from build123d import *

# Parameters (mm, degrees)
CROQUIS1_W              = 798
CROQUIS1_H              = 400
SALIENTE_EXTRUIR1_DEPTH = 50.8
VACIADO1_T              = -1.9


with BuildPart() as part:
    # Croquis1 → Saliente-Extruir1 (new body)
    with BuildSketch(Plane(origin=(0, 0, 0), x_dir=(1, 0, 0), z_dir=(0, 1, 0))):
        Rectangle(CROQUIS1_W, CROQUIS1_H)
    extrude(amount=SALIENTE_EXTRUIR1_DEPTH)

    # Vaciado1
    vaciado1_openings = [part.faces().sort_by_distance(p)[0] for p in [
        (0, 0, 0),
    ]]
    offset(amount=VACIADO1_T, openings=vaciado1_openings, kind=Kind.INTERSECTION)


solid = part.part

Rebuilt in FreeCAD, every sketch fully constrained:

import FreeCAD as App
import Part
import Sketcher
from FreeCAD import Vector
Q = App.Units.Quantity


def faces_at(feature, points):
    """Names of the faces that lie closest to the given points."""
    faces = feature.Shape.Faces
    near = lambda p: min(range(len(faces)), key=lambda i: faces[i].distToShape(Part.Vertex(*p))[0])
    return sorted({f"Face{near(p) + 1}" for p in points})


def add_polygon(sketch, points):
    """Adds a closed chain of lines whose ends are joined by coincident constraints."""
    first, n = sketch.GeometryCount, len(points)
    for a, b in zip(points, points[1:] + points[:1]):
        sketch.addGeometry(Part.LineSegment(App.Vector(*a, 0), App.Vector(*b, 0)), False)
    for i in range(n):
        sketch.addConstraint(Sketcher.Constraint("Coincident", first + i, 2, first + (i + 1) % n, 1))

doc = App.newDocument("Part")
params = doc.addObject("Spreadsheet::Sheet", "Params")
for row, (alias, value) in enumerate([
    ("sketch1_width", "798 mm"),
    ("sketch1_height", "400 mm"),
    ("pad1_length", "50.8 mm"),
    ("thickness_wall", "1.9 mm"),
], start=1):
    params.set(f"A{row}", alias)
    params.set(f"B{row}", "=" + value)
    params.setAlias(f"B{row}", alias)

body = doc.addObject("PartDesign::Body", "Body")

# Sketch on XZ plane
sketch1 = doc.addObject("Sketcher::SketchObject", "Sketch")
body.addObject(sketch1)
sketch1.AttachmentSupport = (doc.XZ_Plane, [""])
sketch1.MapMode = "FlatFace"
add_polygon(sketch1, [(-399, -200), (-399, 200), (399, 200), (399, -200)])  # lines 0-3
sketch1.addConstraint([
    Sketcher.Constraint("Vertical", 0),
    Sketcher.Constraint("Horizontal", 1),
    Sketcher.Constraint("Vertical", 2),
    Sketcher.Constraint("Horizontal", 3),
    Sketcher.Constraint("Symmetric", 0, 2, 2, 2, -1, 1),
    Sketcher.Constraint("DistanceX", 1, 1, 1, 2, Q("798 mm")),
    Sketcher.Constraint("DistanceY", 0, 1, 0, 2, Q("400 mm")),
])
sketch1.setExpression("Constraints[9]", "Params.sketch1_width")
sketch1.setExpression("Constraints[10]", "Params.sketch1_height")
pad1 = doc.addObject("PartDesign::Pad", "Pad")
body.addObject(pad1)
pad1.Profile = sketch1
pad1.setExpression("Length", "Params.pad1_length")
pad1.Reversed = True
doc.recompute()

thickness = doc.addObject("PartDesign::Thickness", "Thickness")
body.addObject(thickness)
thickness.Base = (pad1, faces_at(pad1, [(0, 0, 0)]))
thickness.setExpression("Value", "Params.thickness_wall")
thickness.Reversed = True
thickness.Join = "Intersection"

doc.recompute()
